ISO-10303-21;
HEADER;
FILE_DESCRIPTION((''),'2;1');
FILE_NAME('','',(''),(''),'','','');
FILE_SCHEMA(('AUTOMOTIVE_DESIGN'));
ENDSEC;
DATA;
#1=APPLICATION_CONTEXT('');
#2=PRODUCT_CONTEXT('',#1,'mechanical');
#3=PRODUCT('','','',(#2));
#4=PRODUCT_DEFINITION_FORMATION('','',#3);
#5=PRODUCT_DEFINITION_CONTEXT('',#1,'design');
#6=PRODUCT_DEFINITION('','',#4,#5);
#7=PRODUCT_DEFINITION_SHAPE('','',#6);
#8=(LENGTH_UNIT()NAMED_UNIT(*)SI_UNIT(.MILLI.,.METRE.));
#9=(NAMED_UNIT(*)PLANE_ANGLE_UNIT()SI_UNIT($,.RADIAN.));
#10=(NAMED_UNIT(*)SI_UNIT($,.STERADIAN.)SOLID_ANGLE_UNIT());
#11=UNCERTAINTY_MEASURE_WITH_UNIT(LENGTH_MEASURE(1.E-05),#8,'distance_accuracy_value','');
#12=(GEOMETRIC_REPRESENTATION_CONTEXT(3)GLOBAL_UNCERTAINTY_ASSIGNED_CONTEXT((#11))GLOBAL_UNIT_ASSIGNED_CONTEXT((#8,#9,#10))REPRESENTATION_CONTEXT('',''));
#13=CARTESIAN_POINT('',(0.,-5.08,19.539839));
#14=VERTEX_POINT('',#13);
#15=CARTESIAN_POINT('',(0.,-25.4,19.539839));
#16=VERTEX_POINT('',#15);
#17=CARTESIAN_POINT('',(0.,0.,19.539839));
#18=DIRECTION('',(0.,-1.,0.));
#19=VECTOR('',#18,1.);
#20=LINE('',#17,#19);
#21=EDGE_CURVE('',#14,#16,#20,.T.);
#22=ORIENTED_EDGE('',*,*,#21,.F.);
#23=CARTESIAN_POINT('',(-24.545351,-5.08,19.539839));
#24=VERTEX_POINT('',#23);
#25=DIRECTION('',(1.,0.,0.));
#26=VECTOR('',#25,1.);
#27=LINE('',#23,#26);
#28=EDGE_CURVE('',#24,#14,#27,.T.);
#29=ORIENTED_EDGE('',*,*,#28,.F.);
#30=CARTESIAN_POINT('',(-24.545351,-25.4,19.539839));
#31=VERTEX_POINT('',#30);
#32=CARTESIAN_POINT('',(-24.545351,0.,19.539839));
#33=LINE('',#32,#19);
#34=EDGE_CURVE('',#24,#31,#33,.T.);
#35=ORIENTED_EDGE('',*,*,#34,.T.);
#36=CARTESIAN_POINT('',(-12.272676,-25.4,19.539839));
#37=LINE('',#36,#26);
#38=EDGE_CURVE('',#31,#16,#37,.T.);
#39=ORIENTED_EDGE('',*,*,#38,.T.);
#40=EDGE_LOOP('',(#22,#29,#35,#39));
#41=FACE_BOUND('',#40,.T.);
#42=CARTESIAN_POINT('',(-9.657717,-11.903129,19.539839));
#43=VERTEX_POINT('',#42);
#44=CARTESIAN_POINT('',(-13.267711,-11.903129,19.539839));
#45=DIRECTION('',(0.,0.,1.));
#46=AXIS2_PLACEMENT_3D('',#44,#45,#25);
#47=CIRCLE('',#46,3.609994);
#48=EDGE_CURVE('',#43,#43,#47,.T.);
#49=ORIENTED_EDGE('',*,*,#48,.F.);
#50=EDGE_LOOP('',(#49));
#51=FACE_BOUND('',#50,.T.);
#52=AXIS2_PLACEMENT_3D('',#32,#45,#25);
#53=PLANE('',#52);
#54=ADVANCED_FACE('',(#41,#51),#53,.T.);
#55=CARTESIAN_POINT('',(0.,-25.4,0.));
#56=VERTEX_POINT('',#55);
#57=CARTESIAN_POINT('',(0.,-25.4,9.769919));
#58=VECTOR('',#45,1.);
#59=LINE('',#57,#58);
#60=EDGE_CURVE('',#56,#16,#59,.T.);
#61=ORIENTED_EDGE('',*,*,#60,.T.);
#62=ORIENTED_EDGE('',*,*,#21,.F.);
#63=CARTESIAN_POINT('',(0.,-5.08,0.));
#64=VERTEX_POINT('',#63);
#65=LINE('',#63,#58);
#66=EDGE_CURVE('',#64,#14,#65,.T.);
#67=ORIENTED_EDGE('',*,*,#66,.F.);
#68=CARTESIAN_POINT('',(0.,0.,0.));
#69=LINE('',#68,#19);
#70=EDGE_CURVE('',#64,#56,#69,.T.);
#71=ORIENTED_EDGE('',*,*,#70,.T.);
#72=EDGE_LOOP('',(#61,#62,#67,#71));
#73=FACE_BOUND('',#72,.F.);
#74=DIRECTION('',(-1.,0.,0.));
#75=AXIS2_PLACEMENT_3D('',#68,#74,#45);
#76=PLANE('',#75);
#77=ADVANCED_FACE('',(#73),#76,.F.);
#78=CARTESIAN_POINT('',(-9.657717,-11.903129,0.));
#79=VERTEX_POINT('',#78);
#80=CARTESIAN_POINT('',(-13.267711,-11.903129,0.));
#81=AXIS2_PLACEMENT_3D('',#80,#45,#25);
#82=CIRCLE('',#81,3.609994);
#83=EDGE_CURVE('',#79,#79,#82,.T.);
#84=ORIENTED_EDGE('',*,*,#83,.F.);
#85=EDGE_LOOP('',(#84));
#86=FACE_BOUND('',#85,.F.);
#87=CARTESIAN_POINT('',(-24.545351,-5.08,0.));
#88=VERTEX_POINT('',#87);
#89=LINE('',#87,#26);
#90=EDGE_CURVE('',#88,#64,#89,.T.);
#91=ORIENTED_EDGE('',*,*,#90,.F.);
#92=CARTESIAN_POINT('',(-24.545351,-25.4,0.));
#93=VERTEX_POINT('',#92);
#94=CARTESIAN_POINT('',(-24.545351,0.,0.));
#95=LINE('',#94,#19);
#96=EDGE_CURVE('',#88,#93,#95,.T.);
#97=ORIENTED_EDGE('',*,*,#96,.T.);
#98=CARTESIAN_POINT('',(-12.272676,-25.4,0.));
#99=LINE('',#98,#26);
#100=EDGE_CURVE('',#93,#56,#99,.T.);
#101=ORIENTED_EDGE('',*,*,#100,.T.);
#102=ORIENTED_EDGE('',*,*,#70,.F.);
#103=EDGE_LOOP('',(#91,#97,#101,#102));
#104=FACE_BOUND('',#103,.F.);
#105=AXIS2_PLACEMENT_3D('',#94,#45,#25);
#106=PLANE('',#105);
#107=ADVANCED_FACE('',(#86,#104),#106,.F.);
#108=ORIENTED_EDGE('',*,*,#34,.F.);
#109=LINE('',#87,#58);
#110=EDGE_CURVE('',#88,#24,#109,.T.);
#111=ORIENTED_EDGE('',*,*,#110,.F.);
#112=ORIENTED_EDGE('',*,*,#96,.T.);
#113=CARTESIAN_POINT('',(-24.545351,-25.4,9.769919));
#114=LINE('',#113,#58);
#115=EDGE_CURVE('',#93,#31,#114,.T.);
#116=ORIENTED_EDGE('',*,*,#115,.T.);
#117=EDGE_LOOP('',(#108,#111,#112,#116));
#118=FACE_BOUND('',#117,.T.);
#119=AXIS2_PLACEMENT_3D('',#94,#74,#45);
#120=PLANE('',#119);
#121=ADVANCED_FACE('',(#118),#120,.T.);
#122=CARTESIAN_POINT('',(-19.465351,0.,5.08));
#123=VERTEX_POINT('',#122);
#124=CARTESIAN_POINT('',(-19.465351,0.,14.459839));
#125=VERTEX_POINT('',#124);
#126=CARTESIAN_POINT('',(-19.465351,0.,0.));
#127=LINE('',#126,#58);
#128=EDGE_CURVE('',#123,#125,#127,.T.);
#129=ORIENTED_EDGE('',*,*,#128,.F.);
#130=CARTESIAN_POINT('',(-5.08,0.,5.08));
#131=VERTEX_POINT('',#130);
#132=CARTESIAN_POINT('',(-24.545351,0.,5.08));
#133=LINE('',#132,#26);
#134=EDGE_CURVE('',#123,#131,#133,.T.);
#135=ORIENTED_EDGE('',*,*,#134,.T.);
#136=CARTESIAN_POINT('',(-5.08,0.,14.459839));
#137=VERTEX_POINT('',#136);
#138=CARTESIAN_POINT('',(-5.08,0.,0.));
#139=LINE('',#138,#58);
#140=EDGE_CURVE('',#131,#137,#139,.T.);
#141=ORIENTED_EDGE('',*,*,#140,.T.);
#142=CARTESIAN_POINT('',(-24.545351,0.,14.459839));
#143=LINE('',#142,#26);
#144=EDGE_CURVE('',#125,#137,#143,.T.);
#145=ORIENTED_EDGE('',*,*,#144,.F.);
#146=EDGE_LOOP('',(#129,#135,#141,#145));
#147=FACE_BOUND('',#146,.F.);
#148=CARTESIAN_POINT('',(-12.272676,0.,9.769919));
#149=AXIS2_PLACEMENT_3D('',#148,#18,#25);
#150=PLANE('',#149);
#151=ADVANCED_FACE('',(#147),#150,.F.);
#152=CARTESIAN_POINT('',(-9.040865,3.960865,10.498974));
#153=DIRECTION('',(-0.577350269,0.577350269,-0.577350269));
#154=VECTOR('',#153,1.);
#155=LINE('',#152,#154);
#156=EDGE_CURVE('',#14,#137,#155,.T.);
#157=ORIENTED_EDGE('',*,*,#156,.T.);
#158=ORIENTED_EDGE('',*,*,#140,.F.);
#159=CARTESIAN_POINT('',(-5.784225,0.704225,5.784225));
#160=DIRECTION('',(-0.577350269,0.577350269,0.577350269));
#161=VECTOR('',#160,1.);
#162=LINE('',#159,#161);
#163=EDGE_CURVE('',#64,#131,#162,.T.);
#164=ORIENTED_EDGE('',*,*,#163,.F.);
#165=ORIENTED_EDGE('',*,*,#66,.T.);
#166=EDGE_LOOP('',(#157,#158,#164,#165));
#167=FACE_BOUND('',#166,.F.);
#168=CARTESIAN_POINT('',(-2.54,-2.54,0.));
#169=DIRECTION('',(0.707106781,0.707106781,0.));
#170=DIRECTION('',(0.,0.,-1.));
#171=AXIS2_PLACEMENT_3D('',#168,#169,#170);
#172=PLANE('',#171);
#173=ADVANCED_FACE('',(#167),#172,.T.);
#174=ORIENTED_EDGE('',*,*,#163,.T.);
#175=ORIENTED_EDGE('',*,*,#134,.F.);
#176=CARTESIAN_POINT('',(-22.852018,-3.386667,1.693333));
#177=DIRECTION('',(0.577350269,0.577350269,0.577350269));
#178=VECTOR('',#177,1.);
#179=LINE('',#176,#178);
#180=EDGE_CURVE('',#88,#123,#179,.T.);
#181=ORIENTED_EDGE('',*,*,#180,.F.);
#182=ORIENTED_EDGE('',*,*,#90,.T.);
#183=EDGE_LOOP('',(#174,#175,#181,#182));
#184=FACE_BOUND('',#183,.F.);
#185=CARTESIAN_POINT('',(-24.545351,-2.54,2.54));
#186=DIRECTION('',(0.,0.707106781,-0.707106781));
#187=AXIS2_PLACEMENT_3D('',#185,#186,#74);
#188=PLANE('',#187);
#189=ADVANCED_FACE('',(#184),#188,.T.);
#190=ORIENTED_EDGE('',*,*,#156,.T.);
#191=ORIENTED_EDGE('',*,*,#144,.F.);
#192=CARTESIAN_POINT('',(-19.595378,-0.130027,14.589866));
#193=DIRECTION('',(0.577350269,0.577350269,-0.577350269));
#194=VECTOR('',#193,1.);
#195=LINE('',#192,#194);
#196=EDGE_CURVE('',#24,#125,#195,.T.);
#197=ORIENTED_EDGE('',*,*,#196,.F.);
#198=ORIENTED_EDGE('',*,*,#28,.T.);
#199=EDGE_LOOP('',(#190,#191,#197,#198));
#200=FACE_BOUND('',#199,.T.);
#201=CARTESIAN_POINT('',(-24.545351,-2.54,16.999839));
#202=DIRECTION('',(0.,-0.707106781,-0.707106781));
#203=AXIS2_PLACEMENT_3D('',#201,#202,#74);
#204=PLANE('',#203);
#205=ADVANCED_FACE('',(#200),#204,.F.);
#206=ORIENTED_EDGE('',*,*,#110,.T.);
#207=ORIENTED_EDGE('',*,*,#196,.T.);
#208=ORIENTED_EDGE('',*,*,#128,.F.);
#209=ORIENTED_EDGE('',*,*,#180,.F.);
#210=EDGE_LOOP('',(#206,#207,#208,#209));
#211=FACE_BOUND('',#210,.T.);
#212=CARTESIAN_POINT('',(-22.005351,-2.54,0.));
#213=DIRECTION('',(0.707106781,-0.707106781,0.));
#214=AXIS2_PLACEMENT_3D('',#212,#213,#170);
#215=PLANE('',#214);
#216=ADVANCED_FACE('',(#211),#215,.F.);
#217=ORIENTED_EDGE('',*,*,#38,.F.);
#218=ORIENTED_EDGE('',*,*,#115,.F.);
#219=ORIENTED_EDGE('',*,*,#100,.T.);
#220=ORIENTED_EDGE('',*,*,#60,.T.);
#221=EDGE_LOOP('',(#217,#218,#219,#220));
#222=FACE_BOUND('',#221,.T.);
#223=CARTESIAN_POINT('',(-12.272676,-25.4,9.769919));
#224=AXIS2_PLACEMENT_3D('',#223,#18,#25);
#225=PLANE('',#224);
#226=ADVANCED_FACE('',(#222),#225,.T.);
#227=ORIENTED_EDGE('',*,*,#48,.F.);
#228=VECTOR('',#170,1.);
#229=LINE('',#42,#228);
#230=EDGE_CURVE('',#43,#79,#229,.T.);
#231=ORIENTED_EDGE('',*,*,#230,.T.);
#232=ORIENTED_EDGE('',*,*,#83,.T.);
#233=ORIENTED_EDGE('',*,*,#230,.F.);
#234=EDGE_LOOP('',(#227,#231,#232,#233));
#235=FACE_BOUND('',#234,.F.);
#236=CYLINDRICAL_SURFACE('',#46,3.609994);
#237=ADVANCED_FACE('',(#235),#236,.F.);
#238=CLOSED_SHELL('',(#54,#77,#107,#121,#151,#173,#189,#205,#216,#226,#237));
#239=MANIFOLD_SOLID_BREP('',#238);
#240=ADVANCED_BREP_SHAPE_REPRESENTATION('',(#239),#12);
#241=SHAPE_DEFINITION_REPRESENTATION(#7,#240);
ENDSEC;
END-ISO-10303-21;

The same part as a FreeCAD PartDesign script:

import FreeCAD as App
import Part
import Sketcher
Q = App.Units.Quantity


def edges_at(feature, points):
    """Names of the edges that pass closest to the given points."""
    edges = feature.Shape.Edges
    near = lambda p: min(range(len(edges)), key=lambda i: edges[i].distToShape(Part.Vertex(*p))[0])
    return sorted({f"Edge{near(p) + 1}" for p in points})


def add_polygon(sketch, points):
    """Adds a closed chain of lines whose ends are joined by coincident constraints."""
    first, n = sketch.GeometryCount, len(points)
    for a, b in zip(points, points[1:] + points[:1]):
        sketch.addGeometry(Part.LineSegment(App.Vector(*a, 0), App.Vector(*b, 0)), False)
    for i in range(n):
        sketch.addConstraint(Sketcher.Constraint("Coincident", first + i, 2, first + (i + 1) % n, 1))

doc = App.newDocument("Part")
body = doc.addObject("PartDesign::Body", "Body")

sketch1 = doc.addObject("Sketcher::SketchObject", "Sketch")
body.addObject(sketch1)
sketch1.AttachmentSupport = (doc.XZ_Plane, [""])
sketch1.MapMode = "FlatFace"
add_polygon(sketch1, [(-24.545351, 19.539839), (-24.545351, 0), (0, 0), (0, 19.539839)])
sketch1.addConstraint(Sketcher.Constraint("Vertical", 0))
sketch1.addConstraint(Sketcher.Constraint("Horizontal", 1))
sketch1.addConstraint(Sketcher.Constraint("Vertical", 2))
sketch1.addConstraint(Sketcher.Constraint("Horizontal", 3))
sketch1.addConstraint(Sketcher.Constraint("Coincident", 1, 2, -1, 1))
sketch1.addConstraint(Sketcher.Constraint("DistanceX", 1, 1, 1, 2, Q("24.545351 mm")))
sketch1.addConstraint(Sketcher.Constraint("DistanceY", 0, 2, 0, 1, Q("19.539839 mm")))
pad1 = doc.addObject("PartDesign::Pad", "Pad")
body.addObject(pad1)
pad1.Profile = sketch1
pad1.Length = Q("1 in")
doc.recompute()

chamfer = doc.addObject("PartDesign::Chamfer", "Chamfer")
body.addObject(chamfer)
chamfer.Base = (pad1, edges_at(pad1, [
    (-12.273, 0, 0),
    (0, 0, 9.77),
    (-12.273, 0, 19.54),
    (-24.545, 0, 9.77),
]))
chamfer.Size = Q("0.2 in")

sketch2 = doc.addObject("Sketcher::SketchObject", "Sketch001")
body.addObject(sketch2)
sketch2.AttachmentSupport = (doc.XY_Plane, [""])
sketch2.MapMode = "FlatFace"
sketch2.AttachmentOffset = App.Placement(App.Vector(0, 0, 19.539839), App.Rotation())
sketch2.addGeometry(Part.Circle(App.Vector(-13.267711, -11.903129, 0), App.Vector(0, 0, 1), 3.609994), False)
sketch2.addConstraint(Sketcher.Constraint("Diameter", 0, Q("7.219988 mm")))
sketch2.addConstraint(Sketcher.Constraint("DistanceX", 0, 3, -1, 1, Q("13.267711 mm")))
sketch2.addConstraint(Sketcher.Constraint("DistanceY", 0, 3, -1, 1, Q("11.903129 mm")))
pocket1 = doc.addObject("PartDesign::Pocket", "Pocket")
body.addObject(pocket1)
pocket1.Profile = sketch2
pocket1.Type = "ThroughAll"

doc.recompute()
